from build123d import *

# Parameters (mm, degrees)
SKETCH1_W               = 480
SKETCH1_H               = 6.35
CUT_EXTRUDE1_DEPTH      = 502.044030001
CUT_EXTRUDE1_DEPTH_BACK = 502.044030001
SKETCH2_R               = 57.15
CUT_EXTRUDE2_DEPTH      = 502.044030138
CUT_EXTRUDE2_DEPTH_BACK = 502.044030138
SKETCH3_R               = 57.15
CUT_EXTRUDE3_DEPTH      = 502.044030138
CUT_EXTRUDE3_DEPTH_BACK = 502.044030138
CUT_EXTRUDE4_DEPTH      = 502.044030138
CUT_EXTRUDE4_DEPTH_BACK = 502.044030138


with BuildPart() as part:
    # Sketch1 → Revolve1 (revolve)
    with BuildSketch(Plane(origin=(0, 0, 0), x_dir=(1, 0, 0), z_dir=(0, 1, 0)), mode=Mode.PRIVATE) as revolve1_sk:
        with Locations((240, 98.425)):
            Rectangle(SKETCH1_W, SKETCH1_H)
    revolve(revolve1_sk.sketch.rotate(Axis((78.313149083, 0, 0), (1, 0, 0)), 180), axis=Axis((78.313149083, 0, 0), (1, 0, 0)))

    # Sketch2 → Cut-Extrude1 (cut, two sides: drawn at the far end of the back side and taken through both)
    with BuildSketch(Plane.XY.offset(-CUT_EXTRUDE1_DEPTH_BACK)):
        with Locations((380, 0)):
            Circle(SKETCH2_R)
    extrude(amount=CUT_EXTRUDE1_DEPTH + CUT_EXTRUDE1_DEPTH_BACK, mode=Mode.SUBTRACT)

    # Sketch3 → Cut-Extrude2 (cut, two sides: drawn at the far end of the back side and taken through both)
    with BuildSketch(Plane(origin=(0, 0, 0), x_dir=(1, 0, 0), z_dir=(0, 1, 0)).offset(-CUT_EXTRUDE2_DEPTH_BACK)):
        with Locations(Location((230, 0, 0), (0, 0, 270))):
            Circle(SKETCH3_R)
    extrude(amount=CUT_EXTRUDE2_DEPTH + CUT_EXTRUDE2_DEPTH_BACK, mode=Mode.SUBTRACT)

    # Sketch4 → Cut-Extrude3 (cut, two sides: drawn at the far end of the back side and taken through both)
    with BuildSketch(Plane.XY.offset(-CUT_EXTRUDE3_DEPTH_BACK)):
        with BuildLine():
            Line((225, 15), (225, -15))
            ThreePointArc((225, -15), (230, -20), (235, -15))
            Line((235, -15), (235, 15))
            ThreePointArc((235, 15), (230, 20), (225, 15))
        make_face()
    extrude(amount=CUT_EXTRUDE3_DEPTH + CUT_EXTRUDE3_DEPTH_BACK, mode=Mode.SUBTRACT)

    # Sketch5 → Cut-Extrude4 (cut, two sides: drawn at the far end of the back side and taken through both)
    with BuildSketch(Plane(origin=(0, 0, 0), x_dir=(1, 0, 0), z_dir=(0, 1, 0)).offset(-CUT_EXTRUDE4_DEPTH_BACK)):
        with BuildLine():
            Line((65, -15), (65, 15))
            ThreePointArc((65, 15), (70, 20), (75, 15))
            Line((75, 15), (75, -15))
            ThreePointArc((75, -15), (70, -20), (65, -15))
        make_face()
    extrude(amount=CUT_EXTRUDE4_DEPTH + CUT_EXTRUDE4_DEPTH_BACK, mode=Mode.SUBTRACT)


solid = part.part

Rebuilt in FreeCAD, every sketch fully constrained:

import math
import FreeCAD as App
import Part
import Sketcher

V = App.Vector
Q = App.Units.Quantity


def add_polygon(sketch, points):
    """Adds a closed chain of lines whose ends are joined by coincident constraints."""
    first, n = sketch.GeometryCount, len(points)
    for a, b in zip(points, points[1:] + points[:1]):
        sketch.addGeometry(Part.LineSegment(App.Vector(*a, 0), App.Vector(*b, 0)), False)
    for i in range(n):
        sketch.addConstraint(Sketcher.Constraint("Coincident", first + i, 2, first + (i + 1) % n, 1))

doc = App.newDocument("Part")
params = doc.addObject("Spreadsheet::Sheet", "Params")
for row, (alias, value) in enumerate([
    ("sketch1_width", "480 mm"),
    ("sketch1_height", "6.35 mm"),
    ("revolution_angle", "360 deg"),
    ("sketch2_diameter", "114.3 mm"),
    ("sketch3_diameter", "114.3 mm"),
    ("sketch4_radius", "5 mm"),
    ("sketch4_height", "30 mm"),
    ("sketch5_radius", "5 mm"),
    ("sketch5_height", "30 mm"),
], start=1):
    params.set(f"A{row}", alias)
    params.set(f"B{row}", "=" + value)
    params.setAlias(f"B{row}", alias)

body = doc.addObject("PartDesign::Body", "Body")

# Sketch on XZ plane
sketch1 = body.newObject("Sketcher::SketchObject", "Sketch")
sketch1.AttachmentSupport = (doc.getObject("XZ_Plane"), [""])
sketch1.MapMode = "FlatFace"
add_polygon(sketch1, [(0, -102), (0, -95), (480, -95), (480, -102)])  # lines 0-3
sketch1.addConstraint([
    Sketcher.Constraint("Vertical", 0),
    Sketcher.Constraint("Horizontal", 1),
    Sketcher.Constraint("Vertical", 2),
    Sketcher.Constraint("Horizontal", 3),
    Sketcher.Constraint("PointOnObject", 0, 2, -2),
    Sketcher.Constraint("DistanceX", 1, 1, 1, 2, Q("480 mm")),
    Sketcher.Constraint("DistanceY", 0, 1, 0, 2, Q("6.35 mm")),
    Sketcher.Constraint("DistanceY", 2, 2, -1, 1, Q("101.6 mm")),
])
sketch1.setExpression("Constraints[9]", "Params.sketch1_width")
sketch1.setExpression("Constraints[10]", "Params.sketch1_height")
revolution = body.newObject("PartDesign::Revolution", "Revolution")
revolution.Profile = sketch1
revolution.ReferenceAxis = (sketch1, ["H_Axis"])
revolution.setExpression("Angle", "Params.revolution_angle")

# Sketch on XY plane
sketch2 = body.newObject("Sketcher::SketchObject", "Sketch001")
sketch2.AttachmentSupport = (doc.getObject("XY_Plane"), [""])
sketch2.MapMode = "FlatFace"
sketch2.addGeometry(Part.Circle(V(380, 0, 0), V(0, 0, 1), 57), False)
sketch2.addConstraint([
    Sketcher.Constraint("PointOnObject", 0, 3, -1),
    Sketcher.Constraint("Diameter", 0, Q("114.3 mm")),
    Sketcher.Constraint("DistanceX", -1, 1, 0, 3, Q("380 mm")),
])
sketch2.setExpression("Constraints[1]", "Params.sketch2_diameter")
pocket1 = body.newObject("PartDesign::Pocket", "Pocket")
pocket1.Profile = sketch2
pocket1.Type = "ThroughAll"
pocket1.Midplane = True

# Sketch on XZ plane
sketch3 = body.newObject("Sketcher::SketchObject", "Sketch002")
sketch3.AttachmentSupport = (doc.getObject("XZ_Plane"), [""])
sketch3.MapMode = "FlatFace"
sketch3.addGeometry(Part.Circle(V(230, 0, 0), V(0, 0, 1), 57), False)
sketch3.addConstraint([
    Sketcher.Constraint("PointOnObject", 0, 3, -1),
    Sketcher.Constraint("Diameter", 0, Q("114.3 mm")),
    Sketcher.Constraint("DistanceX", -1, 1, 0, 3, Q("230 mm")),
])
sketch3.setExpression("Constraints[1]", "Params.sketch3_diameter")
pocket2 = body.newObject("PartDesign::Pocket", "Pocket001")
pocket2.Profile = sketch3
pocket2.Type = "ThroughAll"
pocket2.Midplane = True

# Sketch on XY plane
sketch4 = body.newObject("Sketcher::SketchObject", "Sketch003")
sketch4.AttachmentSupport = (doc.getObject("XY_Plane"), [""])
sketch4.MapMode = "FlatFace"
sketch4.addGeometry([
    Part.LineSegment(V(225, 15, 0), V(225, -15, 0)),
    Part.ArcOfCircle(Part.Circle(V(230, -15, 0), V(0, 0, 1), 5), math.radians(180), math.radians(360)),
    Part.LineSegment(V(235, -15, 0), V(235, 15, 0)),
    Part.ArcOfCircle(Part.Circle(V(230, 15, 0), V(0, 0, 1), 5), math.radians(0), math.radians(180)),
], False)
sketch4.addConstraint([
    Sketcher.Constraint("Tangent", 0, 2, 1, 1),
    Sketcher.Constraint("Tangent", 1, 2, 2, 1),
    Sketcher.Constraint("Tangent", 2, 2, 3, 1),
    Sketcher.Constraint("Tangent", 3, 2, 0, 1),
    Sketcher.Constraint("Vertical", 0),
    Sketcher.Constraint("Vertical", 2),
    Sketcher.Constraint("Radius", 1, Q("5 mm")),
    Sketcher.Constraint("DistanceY", 0, 2, 0, 1, Q("30 mm")),
    Sketcher.Constraint("DistanceX", -1, 1, 1, 3, Q("230 mm")),
    Sketcher.Constraint("DistanceY", 1, 3, -1, 1, Q("15 mm")),
])
sketch4.setExpression("Constraints[6]", "Params.sketch4_radius")
sketch4.setExpression("Constraints[7]", "Params.sketch4_height")
pocket3 = body.newObject("PartDesign::Pocket", "Pocket002")
pocket3.Profile = sketch4
pocket3.Type = "ThroughAll"
pocket3.Midplane = True

# Sketch on XZ plane
sketch5 = body.newObject("Sketcher::SketchObject", "Sketch004")
sketch5.AttachmentSupport = (doc.getObject("XZ_Plane"), [""])
sketch5.MapMode = "FlatFace"
sketch5.addGeometry([
    Part.LineSegment(V(65, -15, 0), V(65, 15, 0)),
    Part.ArcOfCircle(Part.Circle(V(70, 15, 0), V(0, 0, 1), 5), math.radians(0), math.radians(180)),
    Part.LineSegment(V(75, 15, 0), V(75, -15, 0)),
    Part.ArcOfCircle(Part.Circle(V(70, -15, 0), V(0, 0, 1), 5), math.radians(180), math.radians(360)),
], False)
sketch5.addConstraint([
    Sketcher.Constraint("Tangent", 0, 2, 1, 2),
    Sketcher.Constraint("Tangent", 1, 1, 2, 1),
    Sketcher.Constraint("Tangent", 2, 2, 3, 2),
    Sketcher.Constraint("Tangent", 3, 1, 0, 1),
    Sketcher.Constraint("Vertical", 0),
    Sketcher.Constraint("Vertical", 2),
    Sketcher.Constraint("Radius", 1, Q("5 mm")),
    Sketcher.Constraint("DistanceY", 0, 1, 0, 2, Q("30 mm")),
    Sketcher.Constraint("DistanceX", -1, 1, 1, 3, Q("70 mm")),
    Sketcher.Constraint("DistanceY", -1, 1, 1, 3, Q("15 mm")),
])
sketch5.setExpression("Constraints[6]", "Params.sketch5_radius")
sketch5.setExpression("Constraints[7]", "Params.sketch5_height")
pocket4 = body.newObject("PartDesign::Pocket", "Pocket003")
pocket4.Profile = sketch5
pocket4.Type = "ThroughAll"
pocket4.Midplane = True

doc.recompute()
